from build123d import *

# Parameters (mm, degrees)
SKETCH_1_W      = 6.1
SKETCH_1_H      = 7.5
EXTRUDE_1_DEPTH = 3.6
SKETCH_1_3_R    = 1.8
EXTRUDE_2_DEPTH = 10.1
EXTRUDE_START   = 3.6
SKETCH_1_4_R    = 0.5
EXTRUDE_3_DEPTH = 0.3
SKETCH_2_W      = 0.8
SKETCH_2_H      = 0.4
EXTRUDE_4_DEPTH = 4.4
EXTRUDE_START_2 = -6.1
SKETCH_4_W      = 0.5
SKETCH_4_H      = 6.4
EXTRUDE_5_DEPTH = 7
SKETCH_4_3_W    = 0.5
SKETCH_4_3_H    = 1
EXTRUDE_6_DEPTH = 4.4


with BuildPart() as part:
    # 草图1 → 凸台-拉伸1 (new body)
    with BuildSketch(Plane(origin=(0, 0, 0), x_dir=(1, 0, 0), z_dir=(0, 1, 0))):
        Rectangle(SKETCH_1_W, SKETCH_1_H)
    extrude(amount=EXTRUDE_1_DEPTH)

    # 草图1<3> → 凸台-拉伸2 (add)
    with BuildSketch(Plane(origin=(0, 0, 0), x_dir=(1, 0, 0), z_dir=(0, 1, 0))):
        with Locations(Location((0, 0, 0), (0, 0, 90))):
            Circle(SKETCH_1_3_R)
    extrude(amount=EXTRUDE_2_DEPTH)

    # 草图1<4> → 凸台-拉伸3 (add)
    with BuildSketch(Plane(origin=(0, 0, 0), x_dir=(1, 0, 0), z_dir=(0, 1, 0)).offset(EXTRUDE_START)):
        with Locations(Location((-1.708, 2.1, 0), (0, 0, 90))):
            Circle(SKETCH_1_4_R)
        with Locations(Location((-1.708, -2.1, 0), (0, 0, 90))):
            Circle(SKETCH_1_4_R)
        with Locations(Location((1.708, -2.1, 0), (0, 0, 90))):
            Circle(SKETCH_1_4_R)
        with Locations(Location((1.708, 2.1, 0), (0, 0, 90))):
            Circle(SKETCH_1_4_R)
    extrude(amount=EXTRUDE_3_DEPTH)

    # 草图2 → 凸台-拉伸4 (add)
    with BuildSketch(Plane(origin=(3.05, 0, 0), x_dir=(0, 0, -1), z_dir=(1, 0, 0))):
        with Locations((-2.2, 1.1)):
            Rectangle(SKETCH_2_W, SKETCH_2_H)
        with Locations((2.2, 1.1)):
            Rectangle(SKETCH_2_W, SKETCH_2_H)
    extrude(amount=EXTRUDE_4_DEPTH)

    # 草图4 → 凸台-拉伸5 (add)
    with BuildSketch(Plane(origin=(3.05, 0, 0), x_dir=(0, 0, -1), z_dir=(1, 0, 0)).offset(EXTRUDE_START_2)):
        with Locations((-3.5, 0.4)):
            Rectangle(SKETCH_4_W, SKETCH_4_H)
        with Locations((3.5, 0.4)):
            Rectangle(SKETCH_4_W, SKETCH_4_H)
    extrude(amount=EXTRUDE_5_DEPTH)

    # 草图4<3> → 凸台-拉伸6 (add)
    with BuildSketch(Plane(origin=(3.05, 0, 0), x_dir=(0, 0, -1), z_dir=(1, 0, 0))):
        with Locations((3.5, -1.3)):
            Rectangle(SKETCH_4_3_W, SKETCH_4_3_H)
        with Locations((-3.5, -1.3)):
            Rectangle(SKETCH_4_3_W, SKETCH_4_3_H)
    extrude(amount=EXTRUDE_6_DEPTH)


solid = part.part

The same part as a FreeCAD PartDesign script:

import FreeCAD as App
import Part
import Sketcher
from FreeCAD import Vector
Q = App.Units.Quantity

doc = App.newDocument("Part")
body = doc.addObject("PartDesign::Body", "Body")

# Sketch on XZ plane
sketch1 = body.newObject("Sketcher::SketchObject", "Sketch")
sketch1.AttachmentSupport = (doc.getObject("XZ_Plane"), [""])
sketch1.MapMode = "FlatFace"
sketch1.addGeometry([
    Part.LineSegment(Vector(-3, -4, 0), Vector(-3, 4, 0)),
    Part.LineSegment(Vector(-3, 4, 0), Vector(3, 4, 0)),
    Part.LineSegment(Vector(3, 4, 0), Vector(3, -4, 0)),
    Part.LineSegment(Vector(3, -4, 0), Vector(-3, -4, 0)),
], False)
sketch1.addConstraint([
    Sketcher.Constraint("Coincident", 0, 2, 1, 1),
    Sketcher.Constraint("Coincident", 1, 2, 2, 1),
    Sketcher.Constraint("Coincident", 2, 2, 3, 1),
    Sketcher.Constraint("Coincident", 3, 2, 0, 1),
    Sketcher.Constraint("Vertical", 0),
    Sketcher.Constraint("Horizontal", 1),
    Sketcher.Constraint("Vertical", 2),
    Sketcher.Constraint("Horizontal", 3),
    Sketcher.Constraint("Symmetric", 0, 2, 2, 2, -1, 1),
    Sketcher.Constraint("DistanceX", 1, 1, 1, 2, Q("6.1 mm")),
    Sketcher.Constraint("DistanceY", 0, 1, 0, 2, Q("7.5 mm")),
])
pad1 = body.newObject("PartDesign::Pad", "Pad")
pad1.Profile = sketch1
pad1.Length = 3.6
pad1.Reversed = True

# Sketch on XZ plane
sketch2 = body.newObject("Sketcher::SketchObject", "Sketch001")
sketch2.AttachmentSupport = (doc.getObject("XZ_Plane"), [""])
sketch2.MapMode = "FlatFace"
sketch2.addGeometry(Part.Circle(Vector(0, 0, 0), Vector(0, 0, 1), 1.8), False)
sketch2.addConstraint([
    Sketcher.Constraint("Coincident", 0, 3, -1, 1),
    Sketcher.Constraint("Diameter", 0, Q("3.6 mm")),
])
pad2 = body.newObject("PartDesign::Pad", "Pad001")
pad2.Profile = sketch2
pad2.Length = 10.1
pad2.Reversed = True

# Sketch on XZ plane
sketch3 = body.newObject("Sketcher::SketchObject", "Sketch002")
sketch3.AttachmentSupport = (doc.getObject("XZ_Plane"), [""])
sketch3.MapMode = "FlatFace"
sketch3.AttachmentOffset = App.Placement(Vector(0, 0, -3.6), App.Rotation())
sketch3.addGeometry([
    Part.Circle(Vector(-1.7, -2.1, 0), Vector(0, 0, 1), 0.5),
    Part.Circle(Vector(-1.7, 2.1, 0), Vector(0, 0, 1), 0.5),
    Part.Circle(Vector(1.7, 2.1, 0), Vector(0, 0, 1), 0.5),
    Part.Circle(Vector(1.7, -2.1, 0), Vector(0, 0, 1), 0.5),
], False)
sketch3.addConstraint([
    Sketcher.Constraint("Equal", 0, 1),
    Sketcher.Constraint("Equal", 1, 2),
    Sketcher.Constraint("Equal", 2, 3),
    Sketcher.Constraint("Symmetric", 0, 3, 2, 3, -1, 1),
    Sketcher.Constraint("Symmetric", 1, 3, 3, 3, -1, 1),
    Sketcher.Constraint("Symmetric", 1, 3, 2, 3, -2),
    Sketcher.Constraint("Diameter", 0, Q("1 mm")),
    Sketcher.Constraint("DistanceY", 0, 3, -1, 1, Q("2.1 mm")),
    Sketcher.Constraint("DistanceX", 0, 3, -1, 1, Q("1.708 mm")),
])
pad3 = body.newObject("PartDesign::Pad", "Pad002")
pad3.Profile = sketch3
pad3.Length = 0.3
pad3.Reversed = True

# Sketch on YZ plane
sketch4 = body.newObject("Sketcher::SketchObject", "Sketch003")
sketch4.AttachmentSupport = (doc.getObject("YZ_Plane"), [""])
sketch4.MapMode = "FlatFace"
sketch4.AttachmentOffset = App.Placement(Vector(0, 0, 3.05), App.Rotation())
sketch4.addGeometry([
    Part.LineSegment(Vector(1.3, 2.6, 0), Vector(0.9, 2.6, 0)),  # 0
    Part.LineSegment(Vector(0.9, 2.6, 0), Vector(0.9, 1.8, 0)),  # 1
    Part.LineSegment(Vector(0.9, 1.8, 0), Vector(1.3, 1.8, 0)),  # 2
    Part.LineSegment(Vector(1.3, 1.8, 0), Vector(1.3, 2.6, 0)),  # 3
    Part.LineSegment(Vector(1.3, -1.8, 0), Vector(0.9, -1.8, 0)),  # 4
    Part.LineSegment(Vector(0.9, -1.8, 0), Vector(0.9, -2.6, 0)),  # 5
    Part.LineSegment(Vector(0.9, -2.6, 0), Vector(1.3, -2.6, 0)),  # 6
    Part.LineSegment(Vector(1.3, -2.6, 0), Vector(1.3, -1.8, 0)),  # 7
], False)
sketch4.addConstraint([
    Sketcher.Constraint("Coincident", 0, 2, 1, 1),
    Sketcher.Constraint("Coincident", 1, 2, 2, 1),
    Sketcher.Constraint("Coincident", 2, 2, 3, 1),
    Sketcher.Constraint("Coincident", 3, 2, 0, 1),
    Sketcher.Constraint("Coincident", 4, 2, 5, 1),
    Sketcher.Constraint("Coincident", 5, 2, 6, 1),
    Sketcher.Constraint("Coincident", 6, 2, 7, 1),
    Sketcher.Constraint("Coincident", 7, 2, 4, 1),
    Sketcher.Constraint("Horizontal", 0),
    Sketcher.Constraint("Vertical", 1),
    Sketcher.Constraint("Horizontal", 2),
    Sketcher.Constraint("Vertical", 3),
    Sketcher.Constraint("Horizontal", 4),
    Sketcher.Constraint("Vertical", 5),
    Sketcher.Constraint("Horizontal", 6),
    Sketcher.Constraint("Vertical", 7),
    Sketcher.Constraint("Symmetric", 1, 2, 4, 2, -1),
    Sketcher.Constraint("Symmetric", 3, 2, 6, 2, -1),
    Sketcher.Constraint("DistanceX", 0, 2, 0, 1, Q("0.4 mm")),
    Sketcher.Constraint("DistanceY", 1, 2, 1, 1, Q("0.8 mm")),
    Sketcher.Constraint("DistanceX", -1, 1, 0, 2, Q("0.9 mm")),
    Sketcher.Constraint("DistanceY", -1, 1, 0, 2, Q("2.6 mm")),
])
pad4 = body.newObject("PartDesign::Pad", "Pad003")
pad4.Profile = sketch4
pad4.Length = 4.4

# Sketch on YZ plane
sketch5 = body.newObject("Sketcher::SketchObject", "Sketch004")
sketch5.AttachmentSupport = (doc.getObject("YZ_Plane"), [""])
sketch5.MapMode = "FlatFace"
sketch5.AttachmentOffset = App.Placement(Vector(0, 0, -3.05), App.Rotation())
sketch5.addGeometry([
    Part.LineSegment(Vector(3.6, 3.8, 0), Vector(-2.8, 3.8, 0)),  # 0
    Part.LineSegment(Vector(-2.8, 3.8, 0), Vector(-2.8, 3.2, 0)),  # 1
    Part.LineSegment(Vector(-2.8, 3.2, 0), Vector(3.6, 3.2, 0)),  # 2
    Part.LineSegment(Vector(3.6, 3.2, 0), Vector(3.6, 3.8, 0)),  # 3
    Part.LineSegment(Vector(3.6, -3.2, 0), Vector(-2.8, -3.2, 0)),  # 4
    Part.LineSegment(Vector(-2.8, -3.2, 0), Vector(-2.8, -3.8, 0)),  # 5
    Part.LineSegment(Vector(-2.8, -3.8, 0), Vector(3.6, -3.8, 0)),  # 6
    Part.LineSegment(Vector(3.6, -3.8, 0), Vector(3.6, -3.2, 0)),  # 7
], False)
sketch5.addConstraint([
    Sketcher.Constraint("Coincident", 0, 2, 1, 1),
    Sketcher.Constraint("Coincident", 1, 2, 2, 1),
    Sketcher.Constraint("Coincident", 2, 2, 3, 1),
    Sketcher.Constraint("Coincident", 3, 2, 0, 1),
    Sketcher.Constraint("Coincident", 4, 2, 5, 1),
    Sketcher.Constraint("Coincident", 5, 2, 6, 1),
    Sketcher.Constraint("Coincident", 6, 2, 7, 1),
    Sketcher.Constraint("Coincident", 7, 2, 4, 1),
    Sketcher.Constraint("Horizontal", 0),
    Sketcher.Constraint("Vertical", 1),
    Sketcher.Constraint("Horizontal", 2),
    Sketcher.Constraint("Vertical", 3),
    Sketcher.Constraint("Horizontal", 4),
    Sketcher.Constraint("Vertical", 5),
    Sketcher.Constraint("Horizontal", 6),
    Sketcher.Constraint("Vertical", 7),
    Sketcher.Constraint("Symmetric", 1, 2, 4, 2, -1),
    Sketcher.Constraint("Symmetric", 3, 2, 6, 2, -1),
    Sketcher.Constraint("DistanceX", 0, 2, 0, 1, Q("6.4 mm")),
    Sketcher.Constraint("DistanceY", 1, 2, 1, 1, Q("0.5 mm")),
    Sketcher.Constraint("DistanceY", 4, 2, 0, 2, Q("7 mm")),
    Sketcher.Constraint("DistanceX", 0, 2, -1, 1, Q("2.8 mm")),
])
pad5 = body.newObject("PartDesign::Pad", "Pad004")
pad5.Profile = sketch5
pad5.Length = 7

# Sketch on YZ plane
sketch6 = body.newObject("Sketcher::SketchObject", "Sketch005")
sketch6.AttachmentSupport = (doc.getObject("YZ_Plane"), [""])
sketch6.MapMode = "FlatFace"
sketch6.AttachmentOffset = App.Placement(Vector(0, 0, 3.05), App.Rotation())
sketch6.addGeometry([
    Part.LineSegment(Vector(-0.8, -3.2, 0), Vector(-1.8, -3.2, 0)),  # 0
    Part.LineSegment(Vector(-1.8, -3.2, 0), Vector(-1.8, -3.8, 0)),  # 1
    Part.LineSegment(Vector(-1.8, -3.8, 0), Vector(-0.8, -3.8, 0)),  # 2
    Part.LineSegment(Vector(-0.8, -3.8, 0), Vector(-0.8, -3.2, 0)),  # 3
    Part.LineSegment(Vector(-0.8, 3.8, 0), Vector(-1.8, 3.8, 0)),  # 4
    Part.LineSegment(Vector(-1.8, 3.8, 0), Vector(-1.8, 3.2, 0)),  # 5
    Part.LineSegment(Vector(-1.8, 3.2, 0), Vector(-0.8, 3.2, 0)),  # 6
    Part.LineSegment(Vector(-0.8, 3.2, 0), Vector(-0.8, 3.8, 0)),  # 7
], False)
sketch6.addConstraint([
    Sketcher.Constraint("Coincident", 0, 2, 1, 1),
    Sketcher.Constraint("Coincident", 1, 2, 2, 1),
    Sketcher.Constraint("Coincident", 2, 2, 3, 1),
    Sketcher.Constraint("Coincident", 3, 2, 0, 1),
    Sketcher.Constraint("Coincident", 4, 2, 5, 1),
    Sketcher.Constraint("Coincident", 5, 2, 6, 1),
    Sketcher.Constraint("Coincident", 6, 2, 7, 1),
    Sketcher.Constraint("Coincident", 7, 2, 4, 1),
    Sketcher.Constraint("Horizontal", 0),
    Sketcher.Constraint("Vertical", 1),
    Sketcher.Constraint("Horizontal", 2),
    Sketcher.Constraint("Vertical", 3),
    Sketcher.Constraint("Horizontal", 4),
    Sketcher.Constraint("Vertical", 5),
    Sketcher.Constraint("Horizontal", 6),
    Sketcher.Constraint("Vertical", 7),
    Sketcher.Constraint("Symmetric", 1, 2, 4, 2, -1),
    Sketcher.Constraint("Symmetric", 3, 2, 6, 2, -1),
    Sketcher.Constraint("DistanceX", 0, 2, 0, 1, Q("1 mm")),
    Sketcher.Constraint("DistanceY", 1, 2, 1, 1, Q("0.5 mm")),
    Sketcher.Constraint("DistanceY", 0, 2, 4, 2, Q("7 mm")),
    Sketcher.Constraint("DistanceX", 0, 2, -1, 1, Q("1.8 mm")),
])
pad6 = body.newObject("PartDesign::Pad", "Pad005")
pad6.Profile = sketch6
pad6.Length = 4.4

doc.recompute()
